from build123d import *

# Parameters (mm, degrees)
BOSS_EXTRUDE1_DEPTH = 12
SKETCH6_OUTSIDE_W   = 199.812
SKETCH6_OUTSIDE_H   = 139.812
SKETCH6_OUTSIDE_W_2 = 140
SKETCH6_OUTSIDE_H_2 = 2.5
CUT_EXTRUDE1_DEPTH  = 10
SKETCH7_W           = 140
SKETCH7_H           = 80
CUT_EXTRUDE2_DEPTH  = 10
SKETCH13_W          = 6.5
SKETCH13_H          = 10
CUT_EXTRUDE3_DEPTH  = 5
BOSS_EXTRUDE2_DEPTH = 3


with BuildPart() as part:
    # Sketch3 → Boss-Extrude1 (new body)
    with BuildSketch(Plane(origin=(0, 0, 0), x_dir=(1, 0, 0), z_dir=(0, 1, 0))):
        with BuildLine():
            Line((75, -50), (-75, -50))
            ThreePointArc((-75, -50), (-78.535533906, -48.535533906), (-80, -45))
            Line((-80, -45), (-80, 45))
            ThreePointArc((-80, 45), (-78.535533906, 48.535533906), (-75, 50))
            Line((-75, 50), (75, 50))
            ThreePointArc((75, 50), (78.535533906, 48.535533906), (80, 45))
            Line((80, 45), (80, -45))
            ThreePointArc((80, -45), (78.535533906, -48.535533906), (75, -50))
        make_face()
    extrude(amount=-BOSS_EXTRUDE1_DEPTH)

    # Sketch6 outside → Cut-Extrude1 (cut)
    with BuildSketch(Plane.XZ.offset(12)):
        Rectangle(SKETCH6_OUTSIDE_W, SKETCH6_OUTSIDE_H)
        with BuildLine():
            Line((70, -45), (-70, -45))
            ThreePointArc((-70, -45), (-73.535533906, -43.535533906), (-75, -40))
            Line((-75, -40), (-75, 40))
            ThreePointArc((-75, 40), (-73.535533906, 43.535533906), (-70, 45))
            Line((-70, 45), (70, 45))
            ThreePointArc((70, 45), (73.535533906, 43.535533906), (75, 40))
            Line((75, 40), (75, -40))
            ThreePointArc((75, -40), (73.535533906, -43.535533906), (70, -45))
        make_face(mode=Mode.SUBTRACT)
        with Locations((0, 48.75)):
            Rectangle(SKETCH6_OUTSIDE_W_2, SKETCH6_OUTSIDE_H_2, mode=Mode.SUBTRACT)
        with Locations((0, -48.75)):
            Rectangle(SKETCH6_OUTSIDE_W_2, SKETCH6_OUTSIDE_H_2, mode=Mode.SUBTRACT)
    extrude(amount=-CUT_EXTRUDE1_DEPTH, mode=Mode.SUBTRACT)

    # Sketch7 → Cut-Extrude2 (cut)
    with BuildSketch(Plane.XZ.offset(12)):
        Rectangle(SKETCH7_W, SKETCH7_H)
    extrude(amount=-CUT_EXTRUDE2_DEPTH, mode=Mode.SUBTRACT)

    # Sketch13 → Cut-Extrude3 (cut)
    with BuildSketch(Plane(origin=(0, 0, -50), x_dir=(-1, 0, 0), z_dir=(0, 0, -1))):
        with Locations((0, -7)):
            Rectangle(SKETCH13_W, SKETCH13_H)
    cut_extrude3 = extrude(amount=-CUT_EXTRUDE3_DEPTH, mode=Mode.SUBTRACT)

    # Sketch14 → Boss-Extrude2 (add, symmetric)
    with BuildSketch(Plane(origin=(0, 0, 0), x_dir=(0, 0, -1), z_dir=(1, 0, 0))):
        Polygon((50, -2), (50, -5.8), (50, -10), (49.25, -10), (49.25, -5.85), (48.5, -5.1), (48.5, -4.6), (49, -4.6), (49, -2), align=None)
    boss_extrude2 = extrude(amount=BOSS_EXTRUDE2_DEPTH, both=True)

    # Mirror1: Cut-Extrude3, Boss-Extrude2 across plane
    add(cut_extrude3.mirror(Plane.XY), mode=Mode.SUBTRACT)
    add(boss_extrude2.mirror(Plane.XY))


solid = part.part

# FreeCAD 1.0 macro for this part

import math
import FreeCAD as App
import Part
import Sketcher
from FreeCAD import Vector
Q = App.Units.Quantity


def add_polygon(sketch, points):
    """Adds a closed chain of lines whose ends are joined by coincident constraints."""
    first, n = sketch.GeometryCount, len(points)
    for a, b in zip(points, points[1:] + points[:1]):
        sketch.addGeometry(Part.LineSegment(App.Vector(*a, 0), App.Vector(*b, 0)), False)
    for i in range(n):
        sketch.addConstraint(Sketcher.Constraint("Coincident", first + i, 2, first + (i + 1) % n, 1))

doc = App.newDocument("Part")
body = doc.addObject("PartDesign::Body", "Body")

sketch1 = doc.addObject("Sketcher::SketchObject", "Sketch")
body.addObject(sketch1)
sketch1.AttachmentSupport = (doc.XZ_Plane, [""])
sketch1.MapMode = "FlatFace"
sketch1.addGeometry(Part.LineSegment(Vector(-75, 50, 0), Vector(75, 50, 0)), False)
sketch1.addGeometry(Part.ArcOfCircle(Part.Circle(Vector(75, 45, 0), Vector(0, 0, 1), 5), math.radians(0), math.radians(90)), False)
sketch1.addGeometry(Part.LineSegment(Vector(80, 45, 0), Vector(80, -45, 0)), False)
sketch1.addGeometry(Part.ArcOfCircle(Part.Circle(Vector(75, -45, 0), Vector(0, 0, 1), 5), math.radians(-90), math.radians(0)), False)
sketch1.addGeometry(Part.LineSegment(Vector(75, -50, 0), Vector(-75, -50, 0)), False)
sketch1.addGeometry(Part.ArcOfCircle(Part.Circle(Vector(-75, -45, 0), Vector(0, 0, 1), 5), math.radians(180), math.radians(270)), False)
sketch1.addGeometry(Part.LineSegment(Vector(-80, -45, 0), Vector(-80, 45, 0)), False)
sketch1.addGeometry(Part.ArcOfCircle(Part.Circle(Vector(-75, 45, 0), Vector(0, 0, 1), 5), math.radians(90), math.radians(180)), False)
sketch1.addConstraint(Sketcher.Constraint("Tangent", 0, 2, 1, 2))
sketch1.addConstraint(Sketcher.Constraint("Tangent", 1, 1, 2, 1))
sketch1.addConstraint(Sketcher.Constraint("Tangent", 2, 2, 3, 2))
sketch1.addConstraint(Sketcher.Constraint("Tangent", 3, 1, 4, 1))
sketch1.addConstraint(Sketcher.Constraint("Tangent", 4, 2, 5, 2))
sketch1.addConstraint(Sketcher.Constraint("Tangent", 5, 1, 6, 1))
sketch1.addConstraint(Sketcher.Constraint("Tangent", 6, 2, 7, 2))
sketch1.addConstraint(Sketcher.Constraint("Tangent", 7, 1, 0, 1))
sketch1.addConstraint(Sketcher.Constraint("Horizontal", 0))
sketch1.addConstraint(Sketcher.Constraint("Vertical", 2))
sketch1.addConstraint(Sketcher.Constraint("Horizontal", 4))
sketch1.addConstraint(Sketcher.Constraint("Vertical", 6))
sketch1.addConstraint(Sketcher.Constraint("Equal", 1, 3))
sketch1.addConstraint(Sketcher.Constraint("Equal", 3, 5))
sketch1.addConstraint(Sketcher.Constraint("Equal", 5, 7))
sketch1.addConstraint(Sketcher.Constraint("Symmetric", 1, 3, 5, 3, -1, 1))
sketch1.addConstraint(Sketcher.Constraint("Radius", 1, Q("5 mm")))
sketch1.addConstraint(Sketcher.Constraint("DistanceX", 0, 1, 0, 2, Q("150 mm")))
sketch1.addConstraint(Sketcher.Constraint("DistanceY", 2, 2, 2, 1, Q("90 mm")))
pad1 = doc.addObject("PartDesign::Pad", "Pad")
body.addObject(pad1)
pad1.Profile = sketch1
pad1.Length = 12

sketch2 = doc.addObject("Sketcher::SketchObject", "Sketch001")
body.addObject(sketch2)
sketch2.AttachmentSupport = (doc.XZ_Plane, [""])
sketch2.MapMode = "FlatFace"
sketch2.AttachmentOffset = App.Placement(Vector(0, 0, 12), App.Rotation())
add_polygon(sketch2, [(-99.906, 69.906), (-99.906, -69.906), (99.906, -69.906), (99.906, 69.906)])
add_polygon(sketch2, [(70, -50), (-70, -50), (-70, -47.5), (70, -47.5)])
sketch2.addGeometry(Part.ArcOfCircle(Part.Circle(Vector(70, -40, 0), Vector(0, 0, 1), 5), math.radians(-90), math.radians(0)), False)
sketch2.addGeometry(Part.LineSegment(Vector(70, -45, 0), Vector(-70, -45, 0)), False)
sketch2.addGeometry(Part.ArcOfCircle(Part.Circle(Vector(-70, -40, 0), Vector(0, 0, 1), 5), math.radians(180), math.radians(270)), False)
sketch2.addGeometry(Part.LineSegment(Vector(-75, -40, 0), Vector(-75, 40, 0)), False)
sketch2.addGeometry(Part.ArcOfCircle(Part.Circle(Vector(-70, 40, 0), Vector(0, 0, 1), 5), math.radians(90), math.radians(180)), False)
sketch2.addGeometry(Part.LineSegment(Vector(-70, 45, 0), Vector(70, 45, 0)), False)
sketch2.addGeometry(Part.ArcOfCircle(Part.Circle(Vector(70, 40, 0), Vector(0, 0, 1), 5), math.radians(0), math.radians(90)), False)
sketch2.addGeometry(Part.LineSegment(Vector(75, 40, 0), Vector(75, -40, 0)), False)
add_polygon(sketch2, [(70, 47.5), (-70, 47.5), (-70, 50), (70, 50)])
sketch2.addConstraint(Sketcher.Constraint("Tangent", 8, 1, 9, 1))
sketch2.addConstraint(Sketcher.Constraint("Tangent", 9, 2, 10, 2))
sketch2.addConstraint(Sketcher.Constraint("Tangent", 10, 1, 11, 1))
sketch2.addConstraint(Sketcher.Constraint("Tangent", 11, 2, 12, 2))
sketch2.addConstraint(Sketcher.Constraint("Tangent", 12, 1, 13, 1))
sketch2.addConstraint(Sketcher.Constraint("Tangent", 13, 2, 14, 2))
sketch2.addConstraint(Sketcher.Constraint("Tangent", 14, 1, 15, 1))
sketch2.addConstraint(Sketcher.Constraint("Tangent", 15, 2, 8, 2))
sketch2.addConstraint(Sketcher.Constraint("Vertical", 0))
sketch2.addConstraint(Sketcher.Constraint("Horizontal", 1))
sketch2.addConstraint(Sketcher.Constraint("Vertical", 2))
sketch2.addConstraint(Sketcher.Constraint("Horizontal", 3))
sketch2.addConstraint(Sketcher.Constraint("Horizontal", 4))
sketch2.addConstraint(Sketcher.Constraint("Vertical", 5))
sketch2.addConstraint(Sketcher.Constraint("Horizontal", 6))
sketch2.addConstraint(Sketcher.Constraint("Vertical", 7))
sketch2.addConstraint(Sketcher.Constraint("Horizontal", 9))
sketch2.addConstraint(Sketcher.Constraint("Vertical", 11))
sketch2.addConstraint(Sketcher.Constraint("Horizontal", 13))
sketch2.addConstraint(Sketcher.Constraint("Vertical", 15))
sketch2.addConstraint(Sketcher.Constraint("Horizontal", 16))
sketch2.addConstraint(Sketcher.Constraint("Vertical", 17))
sketch2.addConstraint(Sketcher.Constraint("Horizontal", 18))
sketch2.addConstraint(Sketcher.Constraint("Vertical", 19))
sketch2.addConstraint(Sketcher.Constraint("Equal", 8, 10))
sketch2.addConstraint(Sketcher.Constraint("Equal", 10, 12))
sketch2.addConstraint(Sketcher.Constraint("Equal", 12, 14))
sketch2.addConstraint(Sketcher.Constraint("Symmetric", 8, 3, 12, 3, -1, 1))
sketch2.addConstraint(Sketcher.Constraint("Symmetric", 0, 2, 2, 2, -1, 1))
sketch2.addConstraint(Sketcher.Constraint("Symmetric", 6, 2, 16, 2, -1, 1))
sketch2.addConstraint(Sketcher.Constraint("Symmetric", 4, 2, 18, 2, -1, 1))
sketch2.addConstraint(Sketcher.Constraint("Vertical", 12, 3, 4, 2))
sketch2.addConstraint(Sketcher.Constraint("Vertical", 14, 3, 6, 2))
sketch2.addConstraint(Sketcher.Constraint("Radius", 8, Q("5 mm")))
sketch2.addConstraint(Sketcher.Constraint("DistanceX", 4, 2, 4, 1, Q("140 mm")))
sketch2.addConstraint(Sketcher.Constraint("DistanceY", 11, 1, 11, 2, Q("80 mm")))
sketch2.addConstraint(Sketcher.Constraint("DistanceY", 5, 1, 5, 2, Q("2.5 mm")))
sketch2.addConstraint(Sketcher.Constraint("DistanceY", 4, 2, -1, 1, Q("50 mm")))
sketch2.addConstraint(Sketcher.Constraint("DistanceX", 1, 1, 1, 2, Q("199.812 mm")))
sketch2.addConstraint(Sketcher.Constraint("DistanceY", 0, 2, 0, 1, Q("139.812 mm")))
pocket1 = doc.addObject("PartDesign::Pocket", "Pocket")
body.addObject(pocket1)
pocket1.Profile = sketch2
pocket1.Length = 10

sketch3 = doc.addObject("Sketcher::SketchObject", "Sketch002")
body.addObject(sketch3)
sketch3.AttachmentSupport = (doc.XZ_Plane, [""])
sketch3.MapMode = "FlatFace"
sketch3.AttachmentOffset = App.Placement(Vector(0, 0, 12), App.Rotation())
add_polygon(sketch3, [(-70, 40), (-70, -40), (70, -40), (70, 40)])
sketch3.addConstraint(Sketcher.Constraint("Vertical", 0))
sketch3.addConstraint(Sketcher.Constraint("Horizontal", 1))
sketch3.addConstraint(Sketcher.Constraint("Vertical", 2))
sketch3.addConstraint(Sketcher.Constraint("Horizontal", 3))
sketch3.addConstraint(Sketcher.Constraint("Symmetric", 0, 2, 2, 2, -1, 1))
sketch3.addConstraint(Sketcher.Constraint("DistanceX", 1, 1, 1, 2, Q("140 mm")))
sketch3.addConstraint(Sketcher.Constraint("DistanceY", 0, 2, 0, 1, Q("80 mm")))
pocket2 = doc.addObject("PartDesign::Pocket", "Pocket001")
body.addObject(pocket2)
pocket2.Profile = sketch3
pocket2.Length = 10

sketch4 = doc.addObject("Sketcher::SketchObject", "Sketch003")
body.addObject(sketch4)
sketch4.AttachmentSupport = (doc.XY_Plane, [""])
sketch4.MapMode = "FlatFace"
sketch4.AttachmentOffset = App.Placement(Vector(0, 0, -50), App.Rotation())
add_polygon(sketch4, [(3.25, -2), (3.25, -12), (-3.25, -12), (-3.25, -2)])
sketch4.addConstraint(Sketcher.Constraint("Vertical", 0))
sketch4.addConstraint(Sketcher.Constraint("Horizontal", 1))
sketch4.addConstraint(Sketcher.Constraint("Vertical", 2))
sketch4.addConstraint(Sketcher.Constraint("Horizontal", 3))
sketch4.addConstraint(Sketcher.Constraint("DistanceY", 0, 2, 0, 1, Q("10 mm")))
sketch4.addConstraint(Sketcher.Constraint("DistanceX", 1, 2, 1, 1, Q("6.5 mm")))
sketch4.addConstraint(Sketcher.Constraint("DistanceY", 0, 2, -1, 1, Q("12 mm")))
sketch4.addConstraint(Sketcher.Constraint("DistanceX", -1, 1, 0, 2, Q("3.25 mm")))
pocket3 = doc.addObject("PartDesign::Pocket", "Pocket002")
body.addObject(pocket3)
pocket3.Profile = sketch4
pocket3.Length = 5
pocket3.Reversed = True

sketch5 = doc.addObject("Sketcher::SketchObject", "Sketch004")
body.addObject(sketch5)
sketch5.AttachmentSupport = (doc.YZ_Plane, [""])
sketch5.MapMode = "FlatFace"
add_polygon(sketch5, [(-10, -50), (-2, -50), (-2, -49), (-4.6, -49), (-4.6, -48.5), (-5.1, -48.5), (-5.85, -49.25), (-10, -49.25)])
sketch5.addConstraint(Sketcher.Constraint("Horizontal", 0))
sketch5.addConstraint(Sketcher.Constraint("Vertical", 1))
sketch5.addConstraint(Sketcher.Constraint("Horizontal", 2))
sketch5.addConstraint(Sketcher.Constraint("Vertical", 3))
sketch5.addConstraint(Sketcher.Constraint("Horizontal", 4))
sketch5.addConstraint(Sketcher.Constraint("Horizontal", 6))
sketch5.addConstraint(Sketcher.Constraint("Vertical", 7))
sketch5.addConstraint(Sketcher.Constraint("Equal", 4, 3))
sketch5.addConstraint(Sketcher.Constraint("DistanceX", 0, 1, 0, 2, Q("8 mm")))
sketch5.addConstraint(Sketcher.Constraint("DistanceY", 1, 1, 1, 2, Q("1 mm")))
sketch5.addConstraint(Sketcher.Constraint("Angle", 5, Q("-135 deg")))
sketch5.addConstraint(Sketcher.Constraint("DistanceX", 2, 2, 2, 1, Q("2.6 mm")))
sketch5.addConstraint(Sketcher.Constraint("DistanceX", 4, 2, 4, 1, Q("0.5 mm")))
sketch5.addConstraint(Sketcher.Constraint("DistanceX", 0, 2, -1, 1, Q("2 mm")))
sketch5.addConstraint(Sketcher.Constraint("DistanceY", 0, 2, -1, 1, Q("50 mm")))
sketch5.addConstraint(Sketcher.Constraint("DistanceX", 6, 2, 6, 1, Q("4.15 mm")))
pad2 = doc.addObject("PartDesign::Pad", "Pad001")
body.addObject(pad2)
pad2.Profile = sketch5
pad2.Length = 6
pad2.Midplane = True
doc.recompute()

mirrored = doc.addObject("PartDesign::Mirrored", "Mirrored")
body.addObject(mirrored)
mirrored.Originals = [pocket3, pad2]
mirrored.MirrorPlane = (doc.XY_Plane, [""])
body.Tip = mirrored

doc.recompute()
